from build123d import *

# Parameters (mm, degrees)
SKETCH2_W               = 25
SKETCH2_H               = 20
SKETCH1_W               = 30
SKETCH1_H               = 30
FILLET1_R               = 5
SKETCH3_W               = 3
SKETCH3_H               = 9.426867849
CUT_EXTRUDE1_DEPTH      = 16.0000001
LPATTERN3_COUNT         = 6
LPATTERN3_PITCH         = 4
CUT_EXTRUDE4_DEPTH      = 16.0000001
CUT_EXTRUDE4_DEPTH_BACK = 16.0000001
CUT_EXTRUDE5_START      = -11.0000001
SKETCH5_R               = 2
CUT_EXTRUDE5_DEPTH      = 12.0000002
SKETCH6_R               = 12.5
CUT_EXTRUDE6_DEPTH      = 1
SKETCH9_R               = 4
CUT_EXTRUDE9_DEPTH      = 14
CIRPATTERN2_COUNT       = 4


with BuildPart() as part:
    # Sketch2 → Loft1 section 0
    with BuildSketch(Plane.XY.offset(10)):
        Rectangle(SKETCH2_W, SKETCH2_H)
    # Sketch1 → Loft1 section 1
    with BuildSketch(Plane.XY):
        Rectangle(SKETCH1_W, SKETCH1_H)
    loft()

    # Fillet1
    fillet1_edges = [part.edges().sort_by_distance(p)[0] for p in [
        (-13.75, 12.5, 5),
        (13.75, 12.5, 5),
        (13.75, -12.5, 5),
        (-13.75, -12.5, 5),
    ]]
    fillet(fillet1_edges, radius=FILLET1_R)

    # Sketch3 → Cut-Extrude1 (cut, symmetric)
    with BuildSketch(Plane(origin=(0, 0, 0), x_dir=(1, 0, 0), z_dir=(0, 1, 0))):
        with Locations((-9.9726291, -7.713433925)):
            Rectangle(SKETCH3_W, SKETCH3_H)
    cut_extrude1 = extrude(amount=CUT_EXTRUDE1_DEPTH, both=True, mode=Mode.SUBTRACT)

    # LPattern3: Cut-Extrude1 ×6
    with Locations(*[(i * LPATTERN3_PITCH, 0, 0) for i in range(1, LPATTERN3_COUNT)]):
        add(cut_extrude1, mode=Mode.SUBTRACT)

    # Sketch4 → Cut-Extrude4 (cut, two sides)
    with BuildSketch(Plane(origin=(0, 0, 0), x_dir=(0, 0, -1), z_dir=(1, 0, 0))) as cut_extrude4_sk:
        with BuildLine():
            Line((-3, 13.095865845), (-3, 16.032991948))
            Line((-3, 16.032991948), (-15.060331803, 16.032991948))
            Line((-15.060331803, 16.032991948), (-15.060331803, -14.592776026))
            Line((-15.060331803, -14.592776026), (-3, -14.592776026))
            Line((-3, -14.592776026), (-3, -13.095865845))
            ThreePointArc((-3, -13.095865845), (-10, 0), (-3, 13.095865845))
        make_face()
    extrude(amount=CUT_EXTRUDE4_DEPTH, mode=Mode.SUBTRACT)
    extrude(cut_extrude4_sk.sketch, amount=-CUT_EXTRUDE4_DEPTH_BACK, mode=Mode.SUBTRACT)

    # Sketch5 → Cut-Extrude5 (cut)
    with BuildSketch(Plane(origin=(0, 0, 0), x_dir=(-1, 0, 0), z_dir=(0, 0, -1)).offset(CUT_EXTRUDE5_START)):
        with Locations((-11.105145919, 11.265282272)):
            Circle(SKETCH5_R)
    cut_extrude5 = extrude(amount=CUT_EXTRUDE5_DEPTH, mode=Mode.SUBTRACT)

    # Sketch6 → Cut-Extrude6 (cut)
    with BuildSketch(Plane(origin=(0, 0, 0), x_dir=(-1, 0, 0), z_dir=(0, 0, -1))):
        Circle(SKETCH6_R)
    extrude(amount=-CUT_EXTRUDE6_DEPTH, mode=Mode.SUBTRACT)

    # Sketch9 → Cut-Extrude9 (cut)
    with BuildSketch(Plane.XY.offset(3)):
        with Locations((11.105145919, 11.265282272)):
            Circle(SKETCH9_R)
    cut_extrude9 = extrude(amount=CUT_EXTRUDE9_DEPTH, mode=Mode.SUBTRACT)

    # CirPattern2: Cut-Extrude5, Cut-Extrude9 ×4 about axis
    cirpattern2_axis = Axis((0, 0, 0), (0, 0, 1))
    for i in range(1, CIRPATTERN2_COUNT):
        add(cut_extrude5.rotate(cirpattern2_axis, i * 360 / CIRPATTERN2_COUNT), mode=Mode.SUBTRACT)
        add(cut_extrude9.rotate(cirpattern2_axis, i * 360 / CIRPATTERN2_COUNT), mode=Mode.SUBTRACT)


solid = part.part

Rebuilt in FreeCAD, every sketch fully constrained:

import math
import FreeCAD as App
import Part
import Sketcher

V = App.Vector


def edges_at(feature, points):
    """Names of the edges that pass closest to the given points."""
    edges = feature.Shape.Edges
    near = lambda p: min(range(len(edges)), key=lambda i: edges[i].distToShape(Part.Vertex(*p))[0])
    return sorted({f"Edge{near(p) + 1}" for p in points})

doc = App.newDocument("Part")
params = doc.addObject("Spreadsheet::Sheet", "Params")
for row, (alias, value) in enumerate([
    ("sketch1_width", "25 mm"),
    ("sketch1_height", "20 mm"),
    ("sketch2_width", "30 mm"),
    ("fillet_radius", "5 mm"),
    ("sketch3_width", "3 mm"),
    ("pocket1_length", "32 mm"),
    ("linearpattern_pitch", "4 mm"),
    ("sketch5_diameter", "4 mm"),
    ("pocket3_length", "12 mm"),
    ("sketch6_diameter", "25 mm"),
    ("pocket4_length", "1 mm"),
    ("sketch7_diameter", "8 mm"),
    ("pocket5_length", "14 mm"),
], start=1):
    params.set(f"A{row}", alias)
    params.set(f"B{row}", "=" + value)
    params.setAlias(f"B{row}", alias)

body = doc.addObject("PartDesign::Body", "Body")

sketch1 = body.newObject("Sketcher::SketchObject", "Sketch")
sketch1.AttachmentSupport = (doc.getObject("XY_Plane"), [""])
sketch1.MapMode = "FlatFace"
sketch1.AttachmentOffset = App.Placement(V(0, 0, 10), App.Rotation())
sketch1.addGeometry([
    Part.LineSegment(V(-12, 10, 0), V(-12, -10, 0)),
    Part.LineSegment(V(-12, -10, 0), V(12, -10, 0)),
    Part.LineSegment(V(12, -10, 0), V(12, 10, 0)),
    Part.LineSegment(V(12, 10, 0), V(-12, 10, 0)),
], False)
sketch1.addConstraint([
    Sketcher.Constraint("Coincident", 0, 2, 1, 1),
    Sketcher.Constraint("Coincident", 1, 2, 2, 1),
    Sketcher.Constraint("Coincident", 2, 2, 3, 1),
    Sketcher.Constraint("Coincident", 3, 2, 0, 1),
    Sketcher.Constraint("Vertical", 0),
    Sketcher.Constraint("Horizontal", 1),
    Sketcher.Constraint("Vertical", 2),
    Sketcher.Constraint("Horizontal", 3),
    Sketcher.Constraint("Symmetric", 0, 2, 2, 2, -1, 1),
    Sketcher.Constraint("DistanceX", 1, 1, 1, 2, 25.0),
    Sketcher.Constraint("DistanceY", 0, 2, 0, 1, 20.0),
])
sketch1.setExpression("Constraints[9]", "Params.sketch1_width")
sketch1.setExpression("Constraints[10]", "Params.sketch1_height")

sketch2 = body.newObject("Sketcher::SketchObject", "Sketch001")
sketch2.AttachmentSupport = (doc.getObject("XY_Plane"), [""])
sketch2.MapMode = "FlatFace"
sketch2.addGeometry([
    Part.LineSegment(V(-15, 15, 0), V(-15, -15, 0)),
    Part.LineSegment(V(-15, -15, 0), V(15, -15, 0)),
    Part.LineSegment(V(15, -15, 0), V(15, 15, 0)),
    Part.LineSegment(V(15, 15, 0), V(-15, 15, 0)),
], False)
sketch2.addConstraint([
    Sketcher.Constraint("Coincident", 0, 2, 1, 1),
    Sketcher.Constraint("Coincident", 1, 2, 2, 1),
    Sketcher.Constraint("Coincident", 2, 2, 3, 1),
    Sketcher.Constraint("Coincident", 3, 2, 0, 1),
    Sketcher.Constraint("Vertical", 0),
    Sketcher.Constraint("Horizontal", 1),
    Sketcher.Constraint("Vertical", 2),
    Sketcher.Constraint("Horizontal", 3),
    Sketcher.Constraint("Symmetric", 0, 2, 2, 2, -1, 1),
    Sketcher.Constraint("Equal", 3, 0),
    Sketcher.Constraint("DistanceX", 1, 1, 1, 2, 30.0),
])
sketch2.setExpression("Constraints[10]", "Params.sketch2_width")

additiveloft = body.newObject("PartDesign::AdditiveLoft", "AdditiveLoft")
additiveloft.Profile = sketch1
additiveloft.Sections = [sketch2]
doc.recompute()

fillet = body.newObject("PartDesign::Fillet", "Fillet")
fillet.Base = (additiveloft, edges_at(additiveloft, [
    (-13.75, 12.5, 5),
    (13.75, 12.5, 5),
    (13.75, -12.5, 5),
    (-13.75, -12.5, 5),
]))
fillet.setExpression("Radius", "Params.fillet_radius")

sketch3 = body.newObject("Sketcher::SketchObject", "Sketch002")
sketch3.AttachmentSupport = (doc.getObject("XZ_Plane"), [""])
sketch3.MapMode = "FlatFace"
sketch3.addGeometry([
    Part.LineSegment(V(-11.5, 3, 0), V(-11.5, 12.4, 0)),
    Part.LineSegment(V(-11.5, 12.4, 0), V(-8.5, 12.4, 0)),
    Part.LineSegment(V(-8.5, 12.4, 0), V(-8.5, 3, 0)),
    Part.LineSegment(V(-8.5, 3, 0), V(-11.5, 3, 0)),
], False)
sketch3.addConstraint([
    Sketcher.Constraint("Coincident", 0, 2, 1, 1),
    Sketcher.Constraint("Coincident", 1, 2, 2, 1),
    Sketcher.Constraint("Coincident", 2, 2, 3, 1),
    Sketcher.Constraint("Coincident", 3, 2, 0, 1),
    Sketcher.Constraint("Vertical", 0),
    Sketcher.Constraint("Horizontal", 1),
    Sketcher.Constraint("Vertical", 2),
    Sketcher.Constraint("Horizontal", 3),
    Sketcher.Constraint("DistanceX", 1, 1, 1, 2, 3.0),
    Sketcher.Constraint("DistanceY", -1, 1, 2, 2, 3.0),
    Sketcher.Constraint("DistanceY", 0, 1, 0, 2, 9.426868),
    Sketcher.Constraint("DistanceX", 0, 2, -1, 1, 11.472629),
])
sketch3.setExpression("Constraints[8]", "Params.sketch3_width")
pocket1 = body.newObject("PartDesign::Pocket", "Pocket")
pocket1.Profile = sketch3
pocket1.setExpression("Length", "Params.pocket1_length")
pocket1.Midplane = True
doc.recompute()

linearpattern = body.newObject("PartDesign::LinearPattern", "LinearPattern")
linearpattern.Originals = [pocket1]
linearpattern.Direction = (doc.getObject("X_Axis"), [""])
linearpattern.Mode = "offset"
linearpattern.setExpression("Offset", "Params.linearpattern_pitch")
linearpattern.Occurrences = 6
body.Tip = linearpattern

sketch4 = body.newObject("Sketcher::SketchObject", "Sketch003")
sketch4.AttachmentSupport = (doc.getObject("YZ_Plane"), [""])
sketch4.MapMode = "FlatFace"
sketch4.addGeometry([
    Part.LineSegment(V(13.1, 3, 0), V(16, 3, 0)),
    Part.LineSegment(V(16, 3, 0), V(16, 15.1, 0)),
    Part.LineSegment(V(16, 15.1, 0), V(-14.6, 15.1, 0)),
    Part.LineSegment(V(-14.6, 15.1, 0), V(-14.6, 3, 0)),
    Part.LineSegment(V(-14.6, 3, 0), V(-13.1, 3, 0)),
    Part.ArcOfCircle(Part.Circle(V(0, -5.8, 0), V(0, 0, 1), 15.8), math.radians(34), math.radians(146)),
], False)
sketch4.addConstraint([
    Sketcher.Constraint("Coincident", 0, 2, 1, 1),
    Sketcher.Constraint("Coincident", 1, 2, 2, 1),
    Sketcher.Constraint("Coincident", 2, 2, 3, 1),
    Sketcher.Constraint("Coincident", 3, 2, 4, 1),
    Sketcher.Constraint("Coincident", 4, 2, 5, 2),
    Sketcher.Constraint("Coincident", 5, 1, 0, 1),
    Sketcher.Constraint("Horizontal", 0),
    Sketcher.Constraint("Vertical", 1),
    Sketcher.Constraint("Horizontal", 2),
    Sketcher.Constraint("Vertical", 3),
    Sketcher.Constraint("Horizontal", 4),
    Sketcher.Constraint("Symmetric", 4, 2, 5, 1, -2),
    Sketcher.Constraint("DistanceY", -1, 1, 0, 2, 3.0),
    Sketcher.Constraint("Radius", 5, 15.750122),
    Sketcher.Constraint("DistanceX", 4, 1, 4, 2, 1.49691),
    Sketcher.Constraint("DistanceY", 1, 1, 1, 2, 12.060332),
    Sketcher.Constraint("DistanceX", 0, 1, 0, 2, 2.937126),
    Sketcher.Constraint("DistanceX", 2, 2, 2, 1, 30.625768),
])
pocket2 = body.newObject("PartDesign::Pocket", "Pocket001")
pocket2.Profile = sketch4
pocket2.Type = "ThroughAll"
pocket2.Midplane = True

sketch5 = body.newObject("Sketcher::SketchObject", "Sketch004")
sketch5.AttachmentSupport = (doc.getObject("XY_Plane"), [""])
sketch5.MapMode = "FlatFace"
sketch5.AttachmentOffset = App.Placement(V(0, 0, 11), App.Rotation())
sketch5.addGeometry(Part.Circle(V(11.1, 11.3, 0), V(0, 0, 1), 2), False)
sketch5.addConstraint([
    Sketcher.Constraint("Diameter", 0, 4.0),
    Sketcher.Constraint("DistanceX", -1, 1, 0, 3, 11.105146),
    Sketcher.Constraint("DistanceY", -1, 1, 0, 3, 11.265282),
])
sketch5.setExpression("Constraints[0]", "Params.sketch5_diameter")
pocket3 = body.newObject("PartDesign::Pocket", "Pocket002")
pocket3.Profile = sketch5
pocket3.setExpression("Length", "Params.pocket3_length")

sketch6 = body.newObject("Sketcher::SketchObject", "Sketch005")
sketch6.AttachmentSupport = (doc.getObject("XY_Plane"), [""])
sketch6.MapMode = "FlatFace"
sketch6.addGeometry(Part.Circle(V(0, 0, 0), V(0, 0, 1), 12), False)
sketch6.addConstraint([
    Sketcher.Constraint("Coincident", 0, 3, -1, 1),
    Sketcher.Constraint("Diameter", 0, 25.0),
])
sketch6.setExpression("Constraints[1]", "Params.sketch6_diameter")
pocket4 = body.newObject("PartDesign::Pocket", "Pocket003")
pocket4.Profile = sketch6
pocket4.setExpression("Length", "Params.pocket4_length")
pocket4.Reversed = True

sketch7 = body.newObject("Sketcher::SketchObject", "Sketch006")
sketch7.AttachmentSupport = (doc.getObject("XY_Plane"), [""])
sketch7.MapMode = "FlatFace"
sketch7.AttachmentOffset = App.Placement(V(0, 0, 3), App.Rotation())
sketch7.addGeometry(Part.Circle(V(11.1, 11.3, 0), V(0, 0, 1), 4), False)
sketch7.addConstraint([
    Sketcher.Constraint("Diameter", 0, 8.0),
    Sketcher.Constraint("DistanceX", -1, 1, 0, 3, 11.105146),
    Sketcher.Constraint("DistanceY", -1, 1, 0, 3, 11.265282),
])
sketch7.setExpression("Constraints[0]", "Params.sketch7_diameter")
pocket5 = body.newObject("PartDesign::Pocket", "Pocket004")
pocket5.Profile = sketch7
pocket5.setExpression("Length", "Params.pocket5_length")
pocket5.Reversed = True
doc.recompute()

polarpattern = body.newObject("PartDesign::PolarPattern", "PolarPattern")
polarpattern.Originals = [pocket3, pocket5]
polarpattern.Axis = (doc.getObject("Z_Axis"), [""])
polarpattern.Angle = 360
polarpattern.Occurrences = 4
body.Tip = polarpattern

doc.recompute()
